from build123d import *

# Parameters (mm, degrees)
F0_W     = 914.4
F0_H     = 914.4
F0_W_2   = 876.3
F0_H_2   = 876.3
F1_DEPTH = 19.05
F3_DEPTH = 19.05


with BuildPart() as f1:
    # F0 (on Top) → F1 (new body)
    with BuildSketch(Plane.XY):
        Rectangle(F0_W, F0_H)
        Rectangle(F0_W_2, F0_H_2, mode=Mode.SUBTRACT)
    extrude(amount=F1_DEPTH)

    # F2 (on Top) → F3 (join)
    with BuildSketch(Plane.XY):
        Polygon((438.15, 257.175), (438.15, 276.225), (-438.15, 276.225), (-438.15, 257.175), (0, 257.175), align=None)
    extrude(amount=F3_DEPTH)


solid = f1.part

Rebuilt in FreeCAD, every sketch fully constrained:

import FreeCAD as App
import Part
import Sketcher
from FreeCAD import Vector
Q = App.Units.Quantity

doc = App.newDocument("Part")
body = doc.addObject("PartDesign::Body", "Body")

sketch1 = body.newObject("Sketcher::SketchObject", "Sketch")
sketch1.AttachmentSupport = (doc.getObject("XY_Plane"), [""])
sketch1.MapMode = "FlatFace"
sketch1.addGeometry([
    Part.LineSegment(Vector(-457, 457, 0), Vector(-457, -457, 0)),
    Part.LineSegment(Vector(-457, -457, 0), Vector(457, -457, 0)),
    Part.LineSegment(Vector(457, -457, 0), Vector(457, 457, 0)),
    Part.LineSegment(Vector(457, 457, 0), Vector(-457, 457, 0)),
    Part.LineSegment(Vector(438, -438, 0), Vector(-438, -438, 0)),
    Part.LineSegment(Vector(-438, -438, 0), Vector(-438, 438, 0)),
    Part.LineSegment(Vector(-438, 438, 0), Vector(438, 438, 0)),
    Part.LineSegment(Vector(438, 438, 0), Vector(438, -438, 0)),
], False)
sketch1.addConstraint([
    Sketcher.Constraint("Coincident", 0, 2, 1, 1),
    Sketcher.Constraint("Coincident", 1, 2, 2, 1),
    Sketcher.Constraint("Coincident", 2, 2, 3, 1),
    Sketcher.Constraint("Coincident", 3, 2, 0, 1),
    Sketcher.Constraint("Coincident", 4, 2, 5, 1),
    Sketcher.Constraint("Coincident", 5, 2, 6, 1),
    Sketcher.Constraint("Coincident", 6, 2, 7, 1),
    Sketcher.Constraint("Coincident", 7, 2, 4, 1),
    Sketcher.Constraint("Vertical", 0),
    Sketcher.Constraint("Horizontal", 1),
    Sketcher.Constraint("Vertical", 2),
    Sketcher.Constraint("Horizontal", 3),
    Sketcher.Constraint("Horizontal", 4),
    Sketcher.Constraint("Vertical", 5),
    Sketcher.Constraint("Horizontal", 6),
    Sketcher.Constraint("Vertical", 7),
    Sketcher.Constraint("Symmetric", 0, 2, 2, 2, -1, 1),
    Sketcher.Constraint("Symmetric", 4, 2, 6, 2, -1, 1),
    Sketcher.Constraint("Equal", 3, 0),
    Sketcher.Constraint("Equal", 6, 5),
    Sketcher.Constraint("DistanceX", 1, 1, 1, 2, Q("36 in")),
    Sketcher.Constraint("DistanceX", 4, 2, 4, 1, Q("34.5 in")),
])
pad1 = body.newObject("PartDesign::Pad", "Pad")
pad1.Profile = sketch1
pad1.Length = Q("0.75 in")

sketch2 = body.newObject("Sketcher::SketchObject", "Sketch001")
sketch2.AttachmentSupport = (doc.getObject("XY_Plane"), [""])
sketch2.MapMode = "FlatFace"
sketch2.addGeometry([
    Part.LineSegment(Vector(438, 257, 0), Vector(438, 276, 0)),
    Part.LineSegment(Vector(438, 276, 0), Vector(-438, 276, 0)),
    Part.LineSegment(Vector(-438, 276, 0), Vector(-438, 257, 0)),
    Part.LineSegment(Vector(-438, 257, 0), Vector(438, 257, 0)),
], False)
sketch2.addConstraint([
    Sketcher.Constraint("Coincident", 0, 2, 1, 1),
    Sketcher.Constraint("Coincident", 1, 2, 2, 1),
    Sketcher.Constraint("Coincident", 2, 2, 3, 1),
    Sketcher.Constraint("Coincident", 3, 2, 0, 1),
    Sketcher.Constraint("Vertical", 0),
    Sketcher.Constraint("Horizontal", 1),
    Sketcher.Constraint("Vertical", 2),
    Sketcher.Constraint("Horizontal", 3),
    Sketcher.Constraint("DistanceX", 1, 2, 1, 1, Q("34.5 in")),
    Sketcher.Constraint("DistanceY", 0, 1, 0, 2, Q("0.75 in")),
    Sketcher.Constraint("DistanceX", -1, 1, 0, 2, Q("17.25 in")),
    Sketcher.Constraint("DistanceY", -1, 1, 0, 2, Q("10.875 in")),
])
pad2 = body.newObject("PartDesign::Pad", "Pad001")
pad2.Profile = sketch2
pad2.Length = Q("0.75 in")

doc.recompute()
